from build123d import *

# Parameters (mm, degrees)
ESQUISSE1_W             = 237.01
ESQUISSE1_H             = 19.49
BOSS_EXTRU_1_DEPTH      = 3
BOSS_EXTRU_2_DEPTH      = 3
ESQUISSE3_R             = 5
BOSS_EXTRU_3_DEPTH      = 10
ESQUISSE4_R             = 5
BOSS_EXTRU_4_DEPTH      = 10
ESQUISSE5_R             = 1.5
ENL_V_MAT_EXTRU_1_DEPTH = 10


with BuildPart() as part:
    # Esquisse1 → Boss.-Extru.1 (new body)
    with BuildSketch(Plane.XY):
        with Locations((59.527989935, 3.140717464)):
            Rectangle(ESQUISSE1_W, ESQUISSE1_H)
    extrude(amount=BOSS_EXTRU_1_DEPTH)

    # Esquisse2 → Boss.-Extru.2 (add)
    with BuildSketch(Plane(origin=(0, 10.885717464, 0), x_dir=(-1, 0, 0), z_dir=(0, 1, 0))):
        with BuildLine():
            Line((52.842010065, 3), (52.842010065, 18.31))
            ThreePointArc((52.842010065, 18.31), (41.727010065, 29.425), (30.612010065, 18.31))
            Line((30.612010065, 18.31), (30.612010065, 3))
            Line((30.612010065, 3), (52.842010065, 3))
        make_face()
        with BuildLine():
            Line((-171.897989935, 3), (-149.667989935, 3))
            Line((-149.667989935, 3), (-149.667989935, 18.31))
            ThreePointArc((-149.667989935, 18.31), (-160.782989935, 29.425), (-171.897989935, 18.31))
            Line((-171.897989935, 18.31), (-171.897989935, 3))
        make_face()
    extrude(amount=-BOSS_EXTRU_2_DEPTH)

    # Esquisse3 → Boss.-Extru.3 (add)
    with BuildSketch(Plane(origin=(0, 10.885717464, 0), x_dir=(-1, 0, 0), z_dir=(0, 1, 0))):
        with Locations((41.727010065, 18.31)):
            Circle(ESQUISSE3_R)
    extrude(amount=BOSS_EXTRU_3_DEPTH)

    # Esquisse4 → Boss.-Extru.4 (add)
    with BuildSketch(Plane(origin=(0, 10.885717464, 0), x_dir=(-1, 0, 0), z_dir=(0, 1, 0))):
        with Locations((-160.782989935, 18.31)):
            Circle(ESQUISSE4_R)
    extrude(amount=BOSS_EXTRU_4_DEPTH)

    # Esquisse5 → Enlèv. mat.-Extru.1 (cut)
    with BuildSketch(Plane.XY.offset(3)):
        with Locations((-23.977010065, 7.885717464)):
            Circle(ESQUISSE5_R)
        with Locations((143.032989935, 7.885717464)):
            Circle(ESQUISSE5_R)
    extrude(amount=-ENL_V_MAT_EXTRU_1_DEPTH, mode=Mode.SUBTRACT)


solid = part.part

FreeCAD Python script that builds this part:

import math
import FreeCAD as App
import Part
import Sketcher


def add_polygon(sketch, points):
    """Adds a closed chain of lines whose ends are joined by coincident constraints."""
    first, n = sketch.GeometryCount, len(points)
    for a, b in zip(points, points[1:] + points[:1]):
        sketch.addGeometry(Part.LineSegment(App.Vector(*a, 0), App.Vector(*b, 0)), False)
    for i in range(n):
        sketch.addConstraint(Sketcher.Constraint("Coincident", first + i, 2, first + (i + 1) % n, 1))

doc = App.newDocument("Part")
body = doc.addObject("PartDesign::Body", "Body")

sketch1 = body.newObject("Sketcher::SketchObject", "Sketch")
sketch1.AttachmentSupport = (doc.getObject("XY_Plane"), [""])
sketch1.MapMode = "FlatFace"
add_polygon(sketch1, [(-59, 13), (-59, -7), (178, -7), (178, 13)])
sketch1.addConstraint([
    Sketcher.Constraint("Vertical", 0),
    Sketcher.Constraint("Horizontal", 1),
    Sketcher.Constraint("Vertical", 2),
    Sketcher.Constraint("Horizontal", 3),
    Sketcher.Constraint("DistanceX", 1, 1, 1, 2, 237.01),
    Sketcher.Constraint("DistanceY", 0, 2, 0, 1, 19.49),
    Sketcher.Constraint("DistanceX", 0, 2, -1, 1, 58.97701),
    Sketcher.Constraint("DistanceY", 0, 2, -1, 1, 6.604283),
])
pad1 = body.newObject("PartDesign::Pad", "Pad")
pad1.Profile = sketch1
pad1.Length = 3

sketch2 = body.newObject("Sketcher::SketchObject", "Sketch001")
sketch2.AttachmentSupport = (doc.getObject("XZ_Plane"), [""])
sketch2.MapMode = "FlatFace"
sketch2.AttachmentOffset = App.Placement(App.Vector(0, 0, -10.885717), App.Rotation())
sketch2.addGeometry([
    Part.LineSegment(App.Vector(-53, 3, 0), App.Vector(-53, 18, 0)),
    Part.ArcOfCircle(Part.Circle(App.Vector(-42, 18, 0), App.Vector(0, 0, 1), 11), math.radians(0), math.radians(180)),
    Part.LineSegment(App.Vector(-31, 18, 0), App.Vector(-31, 3, 0)),
    Part.LineSegment(App.Vector(-31, 3, 0), App.Vector(-53, 3, 0)),
    Part.LineSegment(App.Vector(172, 3, 0), App.Vector(150, 3, 0)),
    Part.LineSegment(App.Vector(150, 3, 0), App.Vector(150, 18, 0)),
    Part.ArcOfCircle(Part.Circle(App.Vector(161, 18, 0), App.Vector(0, 0, 1), 11), math.radians(0), math.radians(180)),
    Part.LineSegment(App.Vector(172, 18, 0), App.Vector(172, 3, 0)),
], False)
sketch2.addConstraint([
    Sketcher.Constraint("Tangent", 0, 2, 1, 2),
    Sketcher.Constraint("Tangent", 1, 1, 2, 1),
    Sketcher.Constraint("Coincident", 2, 2, 3, 1),
    Sketcher.Constraint("Coincident", 3, 2, 0, 1),
    Sketcher.Constraint("Coincident", 4, 2, 5, 1),
    Sketcher.Constraint("Tangent", 5, 2, 6, 2),
    Sketcher.Constraint("Tangent", 6, 1, 7, 1),
    Sketcher.Constraint("Coincident", 7, 2, 4, 1),
    Sketcher.Constraint("Vertical", 0),
    Sketcher.Constraint("Vertical", 2),
    Sketcher.Constraint("Horizontal", 3),
    Sketcher.Constraint("Horizontal", 4),
    Sketcher.Constraint("Vertical", 5),
    Sketcher.Constraint("Vertical", 7),
    Sketcher.Constraint("Equal", 1, 6),
    Sketcher.Constraint("Horizontal", 1, 3, 6, 3),
    Sketcher.Constraint("Horizontal", 3, 2, 4, 2),
    Sketcher.Constraint("DistanceY", -1, 1, 2, 2, 3.0),
    Sketcher.Constraint("Radius", 1, 11.115),
    Sketcher.Constraint("DistanceY", 0, 1, 0, 2, 15.31),
    Sketcher.Constraint("DistanceX", 1, 3, 6, 3, 202.51),
    Sketcher.Constraint("DistanceX", 1, 3, -1, 1, 41.72701),
])
pad2 = body.newObject("PartDesign::Pad", "Pad001")
pad2.Profile = sketch2
pad2.Length = 3

sketch3 = body.newObject("Sketcher::SketchObject", "Sketch002")
sketch3.AttachmentSupport = (doc.getObject("XZ_Plane"), [""])
sketch3.MapMode = "FlatFace"
sketch3.AttachmentOffset = App.Placement(App.Vector(0, 0, -10.885717), App.Rotation())
sketch3.addGeometry(Part.Circle(App.Vector(-42, 18, 0), App.Vector(0, 0, 1), 5), False)
sketch3.addConstraint([
    Sketcher.Constraint("Diameter", 0, 10.0),
    Sketcher.Constraint("DistanceY", -1, 1, 0, 3, 18.31),
    Sketcher.Constraint("DistanceX", 0, 3, -1, 1, 41.72701),
])
pad3 = body.newObject("PartDesign::Pad", "Pad002")
pad3.Profile = sketch3
pad3.Length = 10
pad3.Reversed = True

sketch4 = body.newObject("Sketcher::SketchObject", "Sketch003")
sketch4.AttachmentSupport = (doc.getObject("XZ_Plane"), [""])
sketch4.MapMode = "FlatFace"
sketch4.AttachmentOffset = App.Placement(App.Vector(0, 0, -10.885717), App.Rotation())
sketch4.addGeometry(Part.Circle(App.Vector(161, 18, 0), App.Vector(0, 0, 1), 5), False)
sketch4.addConstraint([
    Sketcher.Constraint("Diameter", 0, 10.0),
    Sketcher.Constraint("DistanceY", -1, 1, 0, 3, 18.31),
    Sketcher.Constraint("DistanceX", -1, 1, 0, 3, 160.78299),
])
pad4 = body.newObject("PartDesign::Pad", "Pad003")
pad4.Profile = sketch4
pad4.Length = 10
pad4.Reversed = True

sketch5 = body.newObject("Sketcher::SketchObject", "Sketch004")
sketch5.AttachmentSupport = (doc.getObject("XY_Plane"), [""])
sketch5.MapMode = "FlatFace"
sketch5.AttachmentOffset = App.Placement(App.Vector(0, 0, 3), App.Rotation())
sketch5.addGeometry([
    Part.Circle(App.Vector(-24, 7.9, 0), App.Vector(0, 0, 1), 1.5),
    Part.Circle(App.Vector(143, 7.9, 0), App.Vector(0, 0, 1), 1.5),
], False)
sketch5.addConstraint([
    Sketcher.Constraint("Equal", 0, 1),
    Sketcher.Constraint("Horizontal", 0, 3, 1, 3),
    Sketcher.Constraint("Diameter", 0, 3.0),
    Sketcher.Constraint("DistanceX", 0, 3, 1, 3, 167.01),
    Sketcher.Constraint("DistanceX", 0, 3, -1, 1, 23.97701),
    Sketcher.Constraint("DistanceY", -1, 1, 0, 3, 7.885717),
])
pocket1 = body.newObject("PartDesign::Pocket", "Pocket")
pocket1.Profile = sketch5
pocket1.Length = 10

doc.recompute()
